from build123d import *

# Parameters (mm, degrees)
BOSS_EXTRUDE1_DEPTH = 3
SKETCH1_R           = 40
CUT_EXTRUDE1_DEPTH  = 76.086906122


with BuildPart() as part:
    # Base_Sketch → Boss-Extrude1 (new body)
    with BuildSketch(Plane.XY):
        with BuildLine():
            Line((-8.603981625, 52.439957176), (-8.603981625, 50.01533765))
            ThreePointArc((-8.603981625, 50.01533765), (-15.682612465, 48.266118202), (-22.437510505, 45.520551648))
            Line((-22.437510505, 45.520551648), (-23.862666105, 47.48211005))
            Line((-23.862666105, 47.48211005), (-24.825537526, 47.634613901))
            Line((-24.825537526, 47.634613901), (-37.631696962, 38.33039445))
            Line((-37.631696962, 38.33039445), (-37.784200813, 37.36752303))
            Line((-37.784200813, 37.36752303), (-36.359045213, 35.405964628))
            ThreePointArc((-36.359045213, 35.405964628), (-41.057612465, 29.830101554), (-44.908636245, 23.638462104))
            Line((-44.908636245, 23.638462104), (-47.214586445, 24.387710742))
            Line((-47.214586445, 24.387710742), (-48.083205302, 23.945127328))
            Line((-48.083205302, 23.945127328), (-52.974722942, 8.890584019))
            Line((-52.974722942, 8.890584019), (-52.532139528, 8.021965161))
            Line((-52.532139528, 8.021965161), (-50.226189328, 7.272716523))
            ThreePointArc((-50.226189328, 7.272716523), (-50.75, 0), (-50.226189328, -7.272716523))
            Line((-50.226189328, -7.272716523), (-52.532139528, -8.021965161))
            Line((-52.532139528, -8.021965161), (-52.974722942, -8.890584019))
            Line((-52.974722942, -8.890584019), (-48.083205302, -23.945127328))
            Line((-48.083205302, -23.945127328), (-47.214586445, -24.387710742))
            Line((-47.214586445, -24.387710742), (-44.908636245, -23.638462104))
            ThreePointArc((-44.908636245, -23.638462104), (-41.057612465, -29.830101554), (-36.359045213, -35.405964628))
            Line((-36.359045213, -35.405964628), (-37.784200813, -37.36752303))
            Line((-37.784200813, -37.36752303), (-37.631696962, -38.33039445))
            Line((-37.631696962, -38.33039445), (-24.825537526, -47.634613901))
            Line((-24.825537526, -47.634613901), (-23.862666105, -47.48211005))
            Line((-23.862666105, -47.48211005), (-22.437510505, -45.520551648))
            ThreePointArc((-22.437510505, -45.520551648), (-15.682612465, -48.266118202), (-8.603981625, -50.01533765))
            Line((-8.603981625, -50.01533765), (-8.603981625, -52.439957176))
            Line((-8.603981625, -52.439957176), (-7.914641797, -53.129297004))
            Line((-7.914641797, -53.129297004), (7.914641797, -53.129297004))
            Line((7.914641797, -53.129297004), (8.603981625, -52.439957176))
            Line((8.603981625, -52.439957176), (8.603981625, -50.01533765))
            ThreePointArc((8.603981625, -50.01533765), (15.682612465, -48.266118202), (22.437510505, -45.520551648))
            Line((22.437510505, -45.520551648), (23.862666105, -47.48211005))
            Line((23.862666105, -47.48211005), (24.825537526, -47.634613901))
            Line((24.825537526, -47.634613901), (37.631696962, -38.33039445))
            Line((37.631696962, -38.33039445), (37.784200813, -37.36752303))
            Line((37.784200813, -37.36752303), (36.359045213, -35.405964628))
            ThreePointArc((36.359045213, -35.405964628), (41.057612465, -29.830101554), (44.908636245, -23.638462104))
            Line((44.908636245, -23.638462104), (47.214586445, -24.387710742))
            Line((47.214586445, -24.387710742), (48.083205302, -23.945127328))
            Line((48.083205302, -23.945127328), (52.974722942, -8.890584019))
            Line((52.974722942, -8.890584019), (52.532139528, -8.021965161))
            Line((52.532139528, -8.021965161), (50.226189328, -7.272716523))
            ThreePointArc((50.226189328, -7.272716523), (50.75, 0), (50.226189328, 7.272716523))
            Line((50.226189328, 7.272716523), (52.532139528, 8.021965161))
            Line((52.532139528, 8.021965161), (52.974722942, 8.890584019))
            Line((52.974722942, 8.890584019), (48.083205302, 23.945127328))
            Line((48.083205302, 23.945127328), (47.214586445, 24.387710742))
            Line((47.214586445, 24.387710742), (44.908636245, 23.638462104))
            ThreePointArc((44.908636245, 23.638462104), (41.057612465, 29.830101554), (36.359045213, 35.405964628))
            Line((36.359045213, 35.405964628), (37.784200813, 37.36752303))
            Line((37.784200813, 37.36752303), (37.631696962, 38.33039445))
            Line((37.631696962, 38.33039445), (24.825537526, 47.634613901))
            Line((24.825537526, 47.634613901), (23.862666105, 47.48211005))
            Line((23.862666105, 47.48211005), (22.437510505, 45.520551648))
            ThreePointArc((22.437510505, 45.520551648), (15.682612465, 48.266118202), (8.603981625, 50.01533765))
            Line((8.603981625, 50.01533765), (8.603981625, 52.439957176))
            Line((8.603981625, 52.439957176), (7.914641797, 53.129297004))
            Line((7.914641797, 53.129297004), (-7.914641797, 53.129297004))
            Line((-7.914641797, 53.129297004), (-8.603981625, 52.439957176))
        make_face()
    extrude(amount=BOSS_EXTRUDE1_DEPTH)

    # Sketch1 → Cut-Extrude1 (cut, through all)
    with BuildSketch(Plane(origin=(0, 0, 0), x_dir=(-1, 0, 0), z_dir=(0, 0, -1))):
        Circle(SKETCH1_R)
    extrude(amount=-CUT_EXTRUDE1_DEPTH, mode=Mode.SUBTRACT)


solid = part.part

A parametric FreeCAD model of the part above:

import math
import FreeCAD as App
import Part
import Sketcher

V = App.Vector
Q = App.Units.Quantity

doc = App.newDocument("Part")
body = doc.addObject("PartDesign::Body", "Body")

# Sketch on XY plane
sketch1 = body.newObject("Sketcher::SketchObject", "Sketch")
sketch1.AttachmentSupport = (doc.getObject("XY_Plane"), [""])
sketch1.MapMode = "FlatFace"
sketch1.addGeometry([
    Part.LineSegment(V(-8.6, 52.4, 0), V(-8.6, 50, 0)),  # 0
    Part.ArcOfCircle(Part.Circle(V(0, 0, 0), V(0, 0, 1), 50.8), math.radians(99.76), math.radians(116.24)),  # 1
    Part.LineSegment(V(-22.4, 45.5, 0), V(-23.9, 47.5, 0)),  # 2
    Part.LineSegment(V(-23.9, 47.5, 0), V(-24.8, 47.6, 0)),  # 3
    Part.LineSegment(V(-24.8, 47.6, 0), V(-37.6, 38.3, 0)),  # 4
    Part.LineSegment(V(-37.6, 38.3, 0), V(-37.8, 37.4, 0)),  # 5
    Part.LineSegment(V(-37.8, 37.4, 0), V(-36.4, 35.4, 0)),  # 6
    Part.ArcOfCircle(Part.Circle(V(0, 0, 0), V(0, 0, 1), 50.7), math.radians(135.76), math.radians(152.24)),  # 7
    Part.LineSegment(V(-44.9, 23.6, 0), V(-47.2, 24.4, 0)),  # 8
    Part.LineSegment(V(-47.2, 24.4, 0), V(-48.1, 23.9, 0)),  # 9
    Part.LineSegment(V(-48.1, 23.9, 0), V(-53, 8.9, 0)),  # 10
    Part.LineSegment(V(-53, 8.9, 0), V(-52.5, 8, 0)),  # 11
    Part.LineSegment(V(-52.5, 8, 0), V(-50.2, 7.3, 0)),  # 12
    Part.ArcOfCircle(Part.Circle(V(0, 0, 0), V(0, 0, 1), 50.8), math.radians(171.76), math.radians(188.24)),  # 13
    Part.LineSegment(V(-50.2, -7.3, 0), V(-52.5, -8, 0)),  # 14
    Part.LineSegment(V(-52.5, -8, 0), V(-53, -8.9, 0)),  # 15
    Part.LineSegment(V(-53, -8.9, 0), V(-48.1, -23.9, 0)),  # 16
    Part.LineSegment(V(-48.1, -23.9, 0), V(-47.2, -24.4, 0)),  # 17
    Part.LineSegment(V(-47.2, -24.4, 0), V(-44.9, -23.6, 0)),  # 18
    Part.ArcOfCircle(Part.Circle(V(0, 0, 0), V(0, 0, 1), 50.7), math.radians(-152.24), math.radians(-135.76)),  # 19
    Part.LineSegment(V(-36.4, -35.4, 0), V(-37.8, -37.4, 0)),  # 20
    Part.LineSegment(V(-37.8, -37.4, 0), V(-37.6, -38.3, 0)),  # 21
    Part.LineSegment(V(-37.6, -38.3, 0), V(-24.8, -47.6, 0)),  # 22
    Part.LineSegment(V(-24.8, -47.6, 0), V(-23.9, -47.5, 0)),  # 23
    Part.LineSegment(V(-23.9, -47.5, 0), V(-22.4, -45.5, 0)),  # 24
    Part.ArcOfCircle(Part.Circle(V(0, 0, 0), V(0, 0, 1), 50.8), math.radians(-116.24), math.radians(-99.76)),  # 25
    Part.LineSegment(V(-8.6, -50, 0), V(-8.6, -52.4, 0)),  # 26
    Part.LineSegment(V(-8.6, -52.4, 0), V(-7.9, -53.1, 0)),  # 27
    Part.LineSegment(V(-7.9, -53.1, 0), V(7.9, -53.1, 0)),  # 28
    Part.LineSegment(V(7.9, -53.1, 0), V(8.6, -52.4, 0)),  # 29
    Part.LineSegment(V(8.6, -52.4, 0), V(8.6, -50, 0)),  # 30
    Part.ArcOfCircle(Part.Circle(V(0, 0, 0), V(0, 0, 1), 50.8), math.radians(-80.24), math.radians(-63.76)),  # 31
    Part.LineSegment(V(22.4, -45.5, 0), V(23.9, -47.5, 0)),  # 32
    Part.LineSegment(V(23.9, -47.5, 0), V(24.8, -47.6, 0)),  # 33
    Part.LineSegment(V(24.8, -47.6, 0), V(37.6, -38.3, 0)),  # 34
    Part.LineSegment(V(37.6, -38.3, 0), V(37.8, -37.4, 0)),  # 35
    Part.LineSegment(V(37.8, -37.4, 0), V(36.4, -35.4, 0)),  # 36
    Part.ArcOfCircle(Part.Circle(V(0, 0, 0), V(0, 0, 1), 50.7), math.radians(-44.24), math.radians(-27.76)),  # 37
    Part.LineSegment(V(44.9, -23.6, 0), V(47.2, -24.4, 0)),  # 38
    Part.LineSegment(V(47.2, -24.4, 0), V(48.1, -23.9, 0)),  # 39
    Part.LineSegment(V(48.1, -23.9, 0), V(53, -8.9, 0)),  # 40
    Part.LineSegment(V(53, -8.9, 0), V(52.5, -8, 0)),  # 41
    Part.LineSegment(V(52.5, -8, 0), V(50.2, -7.3, 0)),  # 42
    Part.ArcOfCircle(Part.Circle(V(0, 0, 0), V(0, 0, 1), 50.8), math.radians(-8.24), math.radians(8.24)),  # 43
    Part.LineSegment(V(50.2, 7.3, 0), V(52.5, 8, 0)),  # 44
    Part.LineSegment(V(52.5, 8, 0), V(53, 8.9, 0)),  # 45
    Part.LineSegment(V(53, 8.9, 0), V(48.1, 23.9, 0)),  # 46
    Part.LineSegment(V(48.1, 23.9, 0), V(47.2, 24.4, 0)),  # 47
    Part.LineSegment(V(47.2, 24.4, 0), V(44.9, 23.6, 0)),  # 48
    Part.ArcOfCircle(Part.Circle(V(0, 0, 0), V(0, 0, 1), 50.7), math.radians(27.76), math.radians(44.24)),  # 49
    Part.LineSegment(V(36.4, 35.4, 0), V(37.8, 37.4, 0)),  # 50
    Part.LineSegment(V(37.8, 37.4, 0), V(37.6, 38.3, 0)),  # 51
    Part.LineSegment(V(37.6, 38.3, 0), V(24.8, 47.6, 0)),  # 52
    Part.LineSegment(V(24.8, 47.6, 0), V(23.9, 47.5, 0)),  # 53
    Part.LineSegment(V(23.9, 47.5, 0), V(22.4, 45.5, 0)),  # 54
    Part.ArcOfCircle(Part.Circle(V(0, 0, 0), V(0, 0, 1), 50.8), math.radians(63.76), math.radians(80.24)),  # 55
    Part.LineSegment(V(8.6, 50, 0), V(8.6, 52.4, 0)),  # 56
    Part.LineSegment(V(8.6, 52.4, 0), V(7.9, 53.1, 0)),  # 57
    Part.LineSegment(V(7.9, 53.1, 0), V(-7.9, 53.1, 0)),  # 58
    Part.LineSegment(V(-7.9, 53.1, 0), V(-8.6, 52.4, 0)),  # 59
], False)
sketch1.addConstraint([
    Sketcher.Constraint("Coincident", 0, 2, 1, 1),
    Sketcher.Constraint("Coincident", 1, 2, 2, 1),
    Sketcher.Constraint("Coincident", 2, 2, 3, 1),
    Sketcher.Constraint("Coincident", 3, 2, 4, 1),
    Sketcher.Constraint("Coincident", 4, 2, 5, 1),
    Sketcher.Constraint("Coincident", 5, 2, 6, 1),
    Sketcher.Constraint("Coincident", 6, 2, 7, 1),
    Sketcher.Constraint("Coincident", 7, 2, 8, 1),
    Sketcher.Constraint("Coincident", 8, 2, 9, 1),
    Sketcher.Constraint("Coincident", 9, 2, 10, 1),
    Sketcher.Constraint("Coincident", 10, 2, 11, 1),
    Sketcher.Constraint("Coincident", 11, 2, 12, 1),
    Sketcher.Constraint("Coincident", 12, 2, 13, 1),
    Sketcher.Constraint("Coincident", 13, 2, 14, 1),
    Sketcher.Constraint("Coincident", 14, 2, 15, 1),
    Sketcher.Constraint("Coincident", 15, 2, 16, 1),
    Sketcher.Constraint("Coincident", 16, 2, 17, 1),
    Sketcher.Constraint("Coincident", 17, 2, 18, 1),
    Sketcher.Constraint("Coincident", 18, 2, 19, 1),
    Sketcher.Constraint("Coincident", 19, 2, 20, 1),
    Sketcher.Constraint("Coincident", 20, 2, 21, 1),
    Sketcher.Constraint("Coincident", 21, 2, 22, 1),
    Sketcher.Constraint("Coincident", 22, 2, 23, 1),
    Sketcher.Constraint("Coincident", 23, 2, 24, 1),
    Sketcher.Constraint("Coincident", 24, 2, 25, 1),
    Sketcher.Constraint("Coincident", 25, 2, 26, 1),
    Sketcher.Constraint("Coincident", 26, 2, 27, 1),
    Sketcher.Constraint("Coincident", 27, 2, 28, 1),
    Sketcher.Constraint("Coincident", 28, 2, 29, 1),
    Sketcher.Constraint("Coincident", 29, 2, 30, 1),
    Sketcher.Constraint("Coincident", 30, 2, 31, 1),
    Sketcher.Constraint("Coincident", 31, 2, 32, 1),
    Sketcher.Constraint("Coincident", 32, 2, 33, 1),
    Sketcher.Constraint("Coincident", 33, 2, 34, 1),
    Sketcher.Constraint("Coincident", 34, 2, 35, 1),
    Sketcher.Constraint("Coincident", 35, 2, 36, 1),
    Sketcher.Constraint("Coincident", 36, 2, 37, 1),
    Sketcher.Constraint("Coincident", 37, 2, 38, 1),
    Sketcher.Constraint("Coincident", 38, 2, 39, 1),
    Sketcher.Constraint("Coincident", 39, 2, 40, 1),
    Sketcher.Constraint("Coincident", 40, 2, 41, 1),
    Sketcher.Constraint("Coincident", 41, 2, 42, 1),
    Sketcher.Constraint("Coincident", 42, 2, 43, 1),
    Sketcher.Constraint("Coincident", 43, 2, 44, 1),
    Sketcher.Constraint("Coincident", 44, 2, 45, 1),
    Sketcher.Constraint("Coincident", 45, 2, 46, 1),
    Sketcher.Constraint("Coincident", 46, 2, 47, 1),
    Sketcher.Constraint("Coincident", 47, 2, 48, 1),
    Sketcher.Constraint("Coincident", 48, 2, 49, 1),
    Sketcher.Constraint("Coincident", 49, 2, 50, 1),
    Sketcher.Constraint("Coincident", 50, 2, 51, 1),
    Sketcher.Constraint("Coincident", 51, 2, 52, 1),
    Sketcher.Constraint("Coincident", 52, 2, 53, 1),
    Sketcher.Constraint("Coincident", 53, 2, 54, 1),
    Sketcher.Constraint("Coincident", 54, 2, 55, 1),
    Sketcher.Constraint("Coincident", 55, 2, 56, 1),
    Sketcher.Constraint("Coincident", 56, 2, 57, 1),
    Sketcher.Constraint("Coincident", 57, 2, 58, 1),
    Sketcher.Constraint("Coincident", 58, 2, 59, 1),
    Sketcher.Constraint("Coincident", 59, 2, 0, 1),
    Sketcher.Constraint("Vertical", 0),
    Sketcher.Constraint("Vertical", 26),
    Sketcher.Constraint("Horizontal", 28),
    Sketcher.Constraint("Vertical", 30),
    Sketcher.Constraint("Vertical", 56),
    Sketcher.Constraint("Horizontal", 58),
    Sketcher.Constraint("Coincident", 1, 3, -1, 1),
    Sketcher.Constraint("Coincident", 7, 3, -1, 1),
    Sketcher.Constraint("Coincident", 13, 3, -1, 1),
    Sketcher.Constraint("Coincident", 19, 3, -1, 1),
    Sketcher.Constraint("Coincident", 25, 3, -1, 1),
    Sketcher.Constraint("Coincident", 31, 3, -1, 1),
    Sketcher.Constraint("Coincident", 37, 3, -1, 1),
    Sketcher.Constraint("Coincident", 43, 3, -1, 1),
    Sketcher.Constraint("Coincident", 49, 3, -1, 1),
    Sketcher.Constraint("Coincident", 55, 3, -1, 1),
    Sketcher.Constraint("Equal", 1, 7),
    Sketcher.Constraint("Equal", 7, 13),
    Sketcher.Constraint("Equal", 13, 19),
    Sketcher.Constraint("Equal", 19, 25),
    Sketcher.Constraint("Equal", 25, 31),
    Sketcher.Constraint("Equal", 31, 37),
    Sketcher.Constraint("Equal", 37, 43),
    Sketcher.Constraint("Equal", 43, 49),
    Sketcher.Constraint("Equal", 49, 55),
    Sketcher.Constraint("Symmetric", 2, 2, 32, 2, -1, 1),
    Sketcher.Constraint("Symmetric", 3, 2, 33, 2, -1, 1),
    Sketcher.Constraint("Symmetric", 4, 2, 34, 2, -1, 1),
    Sketcher.Constraint("Symmetric", 5, 2, 35, 2, -1, 1),
    Sketcher.Constraint("Symmetric", 8, 2, 38, 2, -1, 1),
    Sketcher.Constraint("Symmetric", 9, 2, 39, 2, -1, 1),
    Sketcher.Constraint("Symmetric", 10, 2, 40, 2, -1, 1),
    Sketcher.Constraint("Symmetric", 11, 2, 41, 2, -1, 1),
    Sketcher.Constraint("Symmetric", 14, 2, 44, 2, -1, 1),
    Sketcher.Constraint("Symmetric", 15, 2, 45, 2, -1, 1),
    Sketcher.Constraint("Symmetric", 16, 2, 46, 2, -1, 1),
    Sketcher.Constraint("Symmetric", 17, 2, 47, 2, -1, 1),
    Sketcher.Constraint("Symmetric", 20, 2, 50, 2, -1, 1),
    Sketcher.Constraint("Symmetric", 21, 2, 51, 2, -1, 1),
    Sketcher.Constraint("Symmetric", 22, 2, 52, 2, -1, 1),
    Sketcher.Constraint("Symmetric", 23, 2, 53, 2, -1, 1),
    Sketcher.Constraint("Symmetric", 26, 2, 56, 2, -1, 1),
    Sketcher.Constraint("Symmetric", 27, 2, 57, 2, -1, 1),
    Sketcher.Constraint("Symmetric", 29, 2, 59, 2, -1, 1),
    Sketcher.Constraint("Symmetric", 26, 2, 29, 2, -2),
    Sketcher.Constraint("Symmetric", 23, 2, 32, 2, -2),
    Sketcher.Constraint("Symmetric", 22, 2, 33, 2, -2),
    Sketcher.Constraint("Symmetric", 21, 2, 34, 2, -2),
    Sketcher.Constraint("Symmetric", 20, 2, 35, 2, -2),
    Sketcher.Constraint("Symmetric", 17, 2, 38, 2, -2),
    Sketcher.Constraint("Symmetric", 16, 2, 39, 2, -2),
    Sketcher.Constraint("Symmetric", 15, 2, 40, 2, -2),
    Sketcher.Constraint("Symmetric", 14, 2, 41, 2, -2),
    Sketcher.Constraint("Perpendicular", 2, 4),
    Sketcher.Constraint("Perpendicular", 3, 5),
    Sketcher.Constraint("Perpendicular", 4, 6),
    Sketcher.Constraint("Perpendicular", 8, 10),
    Sketcher.Constraint("Perpendicular", 9, 11),
    Sketcher.Constraint("Perpendicular", 10, 12),
    Sketcher.Constraint("Perpendicular", 14, 16),
    Sketcher.Constraint("Perpendicular", 16, 18),
    Sketcher.Constraint("Perpendicular", 20, 22),
    Sketcher.Constraint("Perpendicular", 22, 24),
    Sketcher.Constraint("Perpendicular", 27, 29),
    Sketcher.Constraint("Parallel", 6, 32),
    Sketcher.Constraint("Perpendicular", 34, 36),
    Sketcher.Constraint("Parallel", 12, 38),
    Sketcher.Constraint("Perpendicular", 40, 42),
    Sketcher.Constraint("Parallel", 18, 44),
    Sketcher.Constraint("Perpendicular", 46, 48),
    Sketcher.Constraint("Parallel", 24, 50),
    Sketcher.Constraint("Perpendicular", 52, 54),
    Sketcher.Constraint("Perpendicular", 57, 59),
    Sketcher.Constraint("Vertical", 28, 2, 57, 2),
    Sketcher.Constraint("Equal", 3, 5),
    Sketcher.Constraint("Equal", 2, 6),
    Sketcher.Constraint("Equal", 6, 8),
    Sketcher.Constraint("Equal", 5, 9),
    Sketcher.Constraint("Equal", 4, 10),
    Sketcher.Constraint("Equal", 9, 11),
    Sketcher.Constraint("Equal", 8, 12),
    Sketcher.Constraint("Equal", 23, 27),
    Sketcher.Constraint("Angle", 2, Q("126 deg")),
    Sketcher.Constraint("Angle", 3, Q("171 deg")),
    Sketcher.Constraint("Angle", 8, Q("162 deg")),
    Sketcher.Constraint("Angle", 9, Q("-153 deg")),
    Sketcher.Constraint("Radius", 1, Q("50.75 mm")),
    Sketcher.Constraint("DistanceY", 0, 2, 0, 1, Q("2.42462 mm")),
    Sketcher.Constraint("DistanceX", 5, 2, -1, 1, Q("37.784201 mm")),
    Sketcher.Constraint("Distance", 2, Q("2.42462 mm")),
    Sketcher.Constraint("DistanceX", 28, 1, 28, 2, Q("15.829284 mm")),
    Sketcher.Constraint("DistanceX", 0, 2, -1, 1, Q("8.603982 mm")),
])
pad1 = body.newObject("PartDesign::Pad", "Pad")
pad1.Profile = sketch1
pad1.Length = 3

# Sketch on XY plane
sketch2 = body.newObject("Sketcher::SketchObject", "Sketch001")
sketch2.AttachmentSupport = (doc.getObject("XY_Plane"), [""])
sketch2.MapMode = "FlatFace"
sketch2.addGeometry(Part.Circle(V(0, 0, 0), V(0, 0, 1), 40), False)
sketch2.addConstraint([
    Sketcher.Constraint("Coincident", 0, 3, -1, 1),
    Sketcher.Constraint("Diameter", 0, Q("80 mm")),
])
pocket1 = body.newObject("PartDesign::Pocket", "Pocket")
pocket1.Profile = sketch2
pocket1.Type = "ThroughAll"
pocket1.Reversed = True

doc.recompute()
